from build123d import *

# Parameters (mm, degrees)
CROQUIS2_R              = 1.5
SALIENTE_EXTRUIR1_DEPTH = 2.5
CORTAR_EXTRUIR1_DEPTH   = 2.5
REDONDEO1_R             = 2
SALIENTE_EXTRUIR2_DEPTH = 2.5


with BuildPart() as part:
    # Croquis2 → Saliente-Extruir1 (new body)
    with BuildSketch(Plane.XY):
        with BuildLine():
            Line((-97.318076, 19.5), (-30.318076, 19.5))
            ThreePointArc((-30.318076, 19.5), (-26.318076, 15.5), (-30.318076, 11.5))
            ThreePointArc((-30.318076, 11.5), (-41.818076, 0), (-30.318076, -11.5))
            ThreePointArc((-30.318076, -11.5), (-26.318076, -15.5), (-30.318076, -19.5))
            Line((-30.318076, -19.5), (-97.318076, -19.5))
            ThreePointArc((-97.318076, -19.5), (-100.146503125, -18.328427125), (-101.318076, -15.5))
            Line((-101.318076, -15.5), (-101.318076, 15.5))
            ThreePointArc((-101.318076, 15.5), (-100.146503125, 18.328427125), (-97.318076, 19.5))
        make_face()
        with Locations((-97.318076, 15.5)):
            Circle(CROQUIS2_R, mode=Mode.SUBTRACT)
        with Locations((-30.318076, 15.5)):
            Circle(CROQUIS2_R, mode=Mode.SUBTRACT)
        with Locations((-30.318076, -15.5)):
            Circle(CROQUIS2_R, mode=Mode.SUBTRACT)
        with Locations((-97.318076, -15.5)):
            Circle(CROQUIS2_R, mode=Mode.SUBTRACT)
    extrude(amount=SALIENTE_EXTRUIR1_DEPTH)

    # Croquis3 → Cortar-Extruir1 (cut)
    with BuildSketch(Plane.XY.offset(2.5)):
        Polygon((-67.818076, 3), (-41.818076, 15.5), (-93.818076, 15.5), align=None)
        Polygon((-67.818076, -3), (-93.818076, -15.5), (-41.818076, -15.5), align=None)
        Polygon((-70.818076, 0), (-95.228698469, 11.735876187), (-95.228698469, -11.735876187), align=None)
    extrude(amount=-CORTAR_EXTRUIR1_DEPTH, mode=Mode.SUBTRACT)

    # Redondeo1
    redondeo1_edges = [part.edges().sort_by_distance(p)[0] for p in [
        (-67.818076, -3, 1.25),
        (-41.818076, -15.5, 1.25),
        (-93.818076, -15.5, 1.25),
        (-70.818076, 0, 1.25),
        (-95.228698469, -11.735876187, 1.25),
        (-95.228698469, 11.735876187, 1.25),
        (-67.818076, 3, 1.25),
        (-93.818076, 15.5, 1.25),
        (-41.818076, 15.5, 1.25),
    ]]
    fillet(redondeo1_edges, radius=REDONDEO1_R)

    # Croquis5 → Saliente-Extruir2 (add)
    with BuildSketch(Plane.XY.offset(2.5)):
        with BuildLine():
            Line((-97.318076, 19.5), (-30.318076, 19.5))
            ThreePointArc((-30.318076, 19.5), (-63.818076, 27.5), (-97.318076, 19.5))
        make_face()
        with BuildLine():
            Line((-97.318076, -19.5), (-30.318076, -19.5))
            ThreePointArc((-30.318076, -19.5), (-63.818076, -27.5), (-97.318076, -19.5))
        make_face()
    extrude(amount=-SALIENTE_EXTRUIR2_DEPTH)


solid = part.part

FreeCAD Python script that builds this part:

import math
import FreeCAD as App
import Part
import Sketcher
Q = App.Units.Quantity


def edges_at(feature, points):
    """Names of the edges that pass closest to the given points."""
    edges = feature.Shape.Edges
    near = lambda p: min(range(len(edges)), key=lambda i: edges[i].distToShape(Part.Vertex(*p))[0])
    return sorted({f"Edge{near(p) + 1}" for p in points})


def add_polygon(sketch, points):
    """Adds a closed chain of lines whose ends are joined by coincident constraints."""
    first, n = sketch.GeometryCount, len(points)
    for a, b in zip(points, points[1:] + points[:1]):
        sketch.addGeometry(Part.LineSegment(App.Vector(*a, 0), App.Vector(*b, 0)), False)
    for i in range(n):
        sketch.addConstraint(Sketcher.Constraint("Coincident", first + i, 2, first + (i + 1) % n, 1))

doc = App.newDocument("Part")
body = doc.addObject("PartDesign::Body", "Body")

sketch1 = body.newObject("Sketcher::SketchObject", "Sketch")
sketch1.AttachmentSupport = (doc.getObject("XY_Plane"), [""])
sketch1.MapMode = "FlatFace"
sketch1.addGeometry([
    Part.LineSegment(App.Vector(-30.3, 19.5, 0), App.Vector(-97.3, 19.5, 0)),
    Part.ArcOfCircle(Part.Circle(App.Vector(-97.3, 15.5, 0), App.Vector(0, 0, 1), 4), math.radians(90), math.radians(180)),
    Part.LineSegment(App.Vector(-101.3, 15.5, 0), App.Vector(-101.3, -15.5, 0)),
    Part.ArcOfCircle(Part.Circle(App.Vector(-97.3, -15.5, 0), App.Vector(0, 0, 1), 4), math.radians(180), math.radians(270)),
    Part.LineSegment(App.Vector(-97.3, -19.5, 0), App.Vector(-30.3, -19.5, 0)),
    Part.ArcOfCircle(Part.Circle(App.Vector(-30.3, -15.5, 0), App.Vector(0, 0, 1), 4), math.radians(-90), math.radians(90)),
    Part.ArcOfCircle(Part.Circle(App.Vector(-30.3, 0, 0), App.Vector(0, 0, 1), 11.5), math.radians(90), math.radians(270)),
    Part.ArcOfCircle(Part.Circle(App.Vector(-30.3, 15.5, 0), App.Vector(0, 0, 1), 4), math.radians(-90), math.radians(90)),
    Part.Circle(App.Vector(-30.3, -15.5, 0), App.Vector(0, 0, 1), 1.5),
    Part.Circle(App.Vector(-97.3, -15.5, 0), App.Vector(0, 0, 1), 1.5),
    Part.Circle(App.Vector(-30.3, 15.5, 0), App.Vector(0, 0, 1), 1.5),
    Part.Circle(App.Vector(-97.3, 15.5, 0), App.Vector(0, 0, 1), 1.5),
], False)
sketch1.addConstraint([
    Sketcher.Constraint("Tangent", 0, 2, 1, 1),
    Sketcher.Constraint("Tangent", 1, 2, 2, 1),
    Sketcher.Constraint("Tangent", 2, 2, 3, 1),
    Sketcher.Constraint("Tangent", 3, 2, 4, 1),
    Sketcher.Constraint("Tangent", 4, 2, 5, 1),
    Sketcher.Constraint("Tangent", 5, 2, 6, 2),
    Sketcher.Constraint("Tangent", 6, 1, 7, 1),
    Sketcher.Constraint("Tangent", 7, 2, 0, 1),
    Sketcher.Constraint("Horizontal", 0),
    Sketcher.Constraint("Vertical", 2),
    Sketcher.Constraint("Horizontal", 4),
    Sketcher.Constraint("Coincident", 8, 3, 5, 3),
    Sketcher.Constraint("Coincident", 9, 3, 3, 3),
    Sketcher.Constraint("Coincident", 10, 3, 7, 3),
    Sketcher.Constraint("Coincident", 11, 3, 1, 3),
    Sketcher.Constraint("Equal", 1, 3),
    Sketcher.Constraint("Equal", 3, 5),
    Sketcher.Constraint("Equal", 5, 7),
    Sketcher.Constraint("Equal", 8, 9),
    Sketcher.Constraint("Equal", 9, 10),
    Sketcher.Constraint("Equal", 10, 11),
    Sketcher.Constraint("Symmetric", 5, 3, 7, 3, -1),
    Sketcher.Constraint("Vertical", 5, 3, 6, 3),
    Sketcher.Constraint("Diameter", 8, Q("3 mm")),
    Sketcher.Constraint("Radius", 1, Q("4 mm")),
    Sketcher.Constraint("Radius", 6, Q("11.5 mm")),
    Sketcher.Constraint("DistanceX", 0, 2, 0, 1, Q("67 mm")),
    Sketcher.Constraint("DistanceX", 1, 3, -1, 1, Q("97.318076 mm")),
])
pad1 = body.newObject("PartDesign::Pad", "Pad")
pad1.Profile = sketch1
pad1.Length = 2.5

sketch2 = body.newObject("Sketcher::SketchObject", "Sketch001")
sketch2.AttachmentSupport = (doc.getObject("XY_Plane"), [""])
sketch2.MapMode = "FlatFace"
sketch2.AttachmentOffset = App.Placement(App.Vector(0, 0, 2.5), App.Rotation())
add_polygon(sketch2, [(-68, 3), (-42, 16), (-94, 16)])
add_polygon(sketch2, [(-68, -3), (-94, -16), (-42, -16)])
add_polygon(sketch2, [(-71, 0), (-95, 12), (-95, -12)])
sketch2.addConstraint([
    Sketcher.Constraint("Horizontal", 1),
    Sketcher.Constraint("Horizontal", 4),
    Sketcher.Constraint("Vertical", 7),
    Sketcher.Constraint("Symmetric", 1, 2, 3, 2, -1),
    Sketcher.Constraint("Symmetric", 2, 2, 5, 2, -1),
    Sketcher.Constraint("PointOnObject", 8, 2, -1),
    Sketcher.Constraint("Parallel", 0, 3),
    Sketcher.Constraint("Parallel", 2, 5),
    Sketcher.Constraint("Parallel", 5, 6),
    Sketcher.Constraint("Parallel", 3, 8),
    Sketcher.Constraint("DistanceX", 1, 2, 1, 1, Q("52 mm")),
    Sketcher.Constraint("DistanceY", -1, 1, 2, 2, Q("3 mm")),
    Sketcher.Constraint("DistanceY", 3, 2, 1, 2, Q("31 mm")),
    Sketcher.Constraint("DistanceX", 8, 2, 2, 2, Q("3 mm")),
    Sketcher.Constraint("DistanceX", 6, 2, -1, 1, Q("95.228698 mm")),
    Sketcher.Constraint("DistanceY", 7, 2, 7, 1, Q("23.471752 mm")),
])
pocket1 = body.newObject("PartDesign::Pocket", "Pocket")
pocket1.Profile = sketch2
pocket1.Length = 2.5
doc.recompute()

fillet = body.newObject("PartDesign::Fillet", "Fillet")
fillet.Base = (pocket1, edges_at(pocket1, [
    (-67.818, -3, 1.25),
    (-41.818, -15.5, 1.25),
    (-93.818, -15.5, 1.25),
    (-70.818, 0, 1.25),
    (-95.229, -11.736, 1.25),
    (-95.229, 11.736, 1.25),
    (-67.818, 3, 1.25),
    (-93.818, 15.5, 1.25),
    (-41.818, 15.5, 1.25),
]))
fillet.Radius = 2

sketch3 = body.newObject("Sketcher::SketchObject", "Sketch002")
sketch3.AttachmentSupport = (doc.getObject("XY_Plane"), [""])
sketch3.MapMode = "FlatFace"
sketch3.AttachmentOffset = App.Placement(App.Vector(0, 0, 2.5), App.Rotation())
sketch3.addGeometry([
    Part.LineSegment(App.Vector(-97, 20, 0), App.Vector(-30, 20, 0)),
    Part.ArcOfCircle(Part.Circle(App.Vector(-64, -47, 0), App.Vector(0, 0, 1), 74), math.radians(63), math.radians(117)),
    Part.LineSegment(App.Vector(-30, -20, 0), App.Vector(-97, -20, 0)),
    Part.ArcOfCircle(Part.Circle(App.Vector(-64, 47, 0), App.Vector(0, 0, 1), 74), math.radians(-117), math.radians(-63)),
], False)
sketch3.addConstraint([
    Sketcher.Constraint("Coincident", 0, 1, 1, 2),
    Sketcher.Constraint("Coincident", 1, 1, 0, 2),
    Sketcher.Constraint("Coincident", 2, 1, 3, 2),
    Sketcher.Constraint("Coincident", 3, 1, 2, 2),
    Sketcher.Constraint("Horizontal", 0),
    Sketcher.Constraint("Horizontal", 2),
    Sketcher.Constraint("Equal", 1, 3),
    Sketcher.Constraint("Symmetric", 1, 3, 3, 3, -1),
    Sketcher.Constraint("Vertical", 1, 1, 2, 1),
    Sketcher.Constraint("DistanceX", 0, 1, 0, 2, Q("67 mm")),
    Sketcher.Constraint("DistanceY", 2, 1, 1, 1, Q("39 mm")),
    Sketcher.Constraint("Radius", 1, Q("74.140625 mm")),
    Sketcher.Constraint("DistanceX", 1, 3, -1, 1, Q("63.818076 mm")),
])
pad2 = body.newObject("PartDesign::Pad", "Pad001")
pad2.Profile = sketch3
pad2.Length = 2.5
pad2.Reversed = True

doc.recompute()
